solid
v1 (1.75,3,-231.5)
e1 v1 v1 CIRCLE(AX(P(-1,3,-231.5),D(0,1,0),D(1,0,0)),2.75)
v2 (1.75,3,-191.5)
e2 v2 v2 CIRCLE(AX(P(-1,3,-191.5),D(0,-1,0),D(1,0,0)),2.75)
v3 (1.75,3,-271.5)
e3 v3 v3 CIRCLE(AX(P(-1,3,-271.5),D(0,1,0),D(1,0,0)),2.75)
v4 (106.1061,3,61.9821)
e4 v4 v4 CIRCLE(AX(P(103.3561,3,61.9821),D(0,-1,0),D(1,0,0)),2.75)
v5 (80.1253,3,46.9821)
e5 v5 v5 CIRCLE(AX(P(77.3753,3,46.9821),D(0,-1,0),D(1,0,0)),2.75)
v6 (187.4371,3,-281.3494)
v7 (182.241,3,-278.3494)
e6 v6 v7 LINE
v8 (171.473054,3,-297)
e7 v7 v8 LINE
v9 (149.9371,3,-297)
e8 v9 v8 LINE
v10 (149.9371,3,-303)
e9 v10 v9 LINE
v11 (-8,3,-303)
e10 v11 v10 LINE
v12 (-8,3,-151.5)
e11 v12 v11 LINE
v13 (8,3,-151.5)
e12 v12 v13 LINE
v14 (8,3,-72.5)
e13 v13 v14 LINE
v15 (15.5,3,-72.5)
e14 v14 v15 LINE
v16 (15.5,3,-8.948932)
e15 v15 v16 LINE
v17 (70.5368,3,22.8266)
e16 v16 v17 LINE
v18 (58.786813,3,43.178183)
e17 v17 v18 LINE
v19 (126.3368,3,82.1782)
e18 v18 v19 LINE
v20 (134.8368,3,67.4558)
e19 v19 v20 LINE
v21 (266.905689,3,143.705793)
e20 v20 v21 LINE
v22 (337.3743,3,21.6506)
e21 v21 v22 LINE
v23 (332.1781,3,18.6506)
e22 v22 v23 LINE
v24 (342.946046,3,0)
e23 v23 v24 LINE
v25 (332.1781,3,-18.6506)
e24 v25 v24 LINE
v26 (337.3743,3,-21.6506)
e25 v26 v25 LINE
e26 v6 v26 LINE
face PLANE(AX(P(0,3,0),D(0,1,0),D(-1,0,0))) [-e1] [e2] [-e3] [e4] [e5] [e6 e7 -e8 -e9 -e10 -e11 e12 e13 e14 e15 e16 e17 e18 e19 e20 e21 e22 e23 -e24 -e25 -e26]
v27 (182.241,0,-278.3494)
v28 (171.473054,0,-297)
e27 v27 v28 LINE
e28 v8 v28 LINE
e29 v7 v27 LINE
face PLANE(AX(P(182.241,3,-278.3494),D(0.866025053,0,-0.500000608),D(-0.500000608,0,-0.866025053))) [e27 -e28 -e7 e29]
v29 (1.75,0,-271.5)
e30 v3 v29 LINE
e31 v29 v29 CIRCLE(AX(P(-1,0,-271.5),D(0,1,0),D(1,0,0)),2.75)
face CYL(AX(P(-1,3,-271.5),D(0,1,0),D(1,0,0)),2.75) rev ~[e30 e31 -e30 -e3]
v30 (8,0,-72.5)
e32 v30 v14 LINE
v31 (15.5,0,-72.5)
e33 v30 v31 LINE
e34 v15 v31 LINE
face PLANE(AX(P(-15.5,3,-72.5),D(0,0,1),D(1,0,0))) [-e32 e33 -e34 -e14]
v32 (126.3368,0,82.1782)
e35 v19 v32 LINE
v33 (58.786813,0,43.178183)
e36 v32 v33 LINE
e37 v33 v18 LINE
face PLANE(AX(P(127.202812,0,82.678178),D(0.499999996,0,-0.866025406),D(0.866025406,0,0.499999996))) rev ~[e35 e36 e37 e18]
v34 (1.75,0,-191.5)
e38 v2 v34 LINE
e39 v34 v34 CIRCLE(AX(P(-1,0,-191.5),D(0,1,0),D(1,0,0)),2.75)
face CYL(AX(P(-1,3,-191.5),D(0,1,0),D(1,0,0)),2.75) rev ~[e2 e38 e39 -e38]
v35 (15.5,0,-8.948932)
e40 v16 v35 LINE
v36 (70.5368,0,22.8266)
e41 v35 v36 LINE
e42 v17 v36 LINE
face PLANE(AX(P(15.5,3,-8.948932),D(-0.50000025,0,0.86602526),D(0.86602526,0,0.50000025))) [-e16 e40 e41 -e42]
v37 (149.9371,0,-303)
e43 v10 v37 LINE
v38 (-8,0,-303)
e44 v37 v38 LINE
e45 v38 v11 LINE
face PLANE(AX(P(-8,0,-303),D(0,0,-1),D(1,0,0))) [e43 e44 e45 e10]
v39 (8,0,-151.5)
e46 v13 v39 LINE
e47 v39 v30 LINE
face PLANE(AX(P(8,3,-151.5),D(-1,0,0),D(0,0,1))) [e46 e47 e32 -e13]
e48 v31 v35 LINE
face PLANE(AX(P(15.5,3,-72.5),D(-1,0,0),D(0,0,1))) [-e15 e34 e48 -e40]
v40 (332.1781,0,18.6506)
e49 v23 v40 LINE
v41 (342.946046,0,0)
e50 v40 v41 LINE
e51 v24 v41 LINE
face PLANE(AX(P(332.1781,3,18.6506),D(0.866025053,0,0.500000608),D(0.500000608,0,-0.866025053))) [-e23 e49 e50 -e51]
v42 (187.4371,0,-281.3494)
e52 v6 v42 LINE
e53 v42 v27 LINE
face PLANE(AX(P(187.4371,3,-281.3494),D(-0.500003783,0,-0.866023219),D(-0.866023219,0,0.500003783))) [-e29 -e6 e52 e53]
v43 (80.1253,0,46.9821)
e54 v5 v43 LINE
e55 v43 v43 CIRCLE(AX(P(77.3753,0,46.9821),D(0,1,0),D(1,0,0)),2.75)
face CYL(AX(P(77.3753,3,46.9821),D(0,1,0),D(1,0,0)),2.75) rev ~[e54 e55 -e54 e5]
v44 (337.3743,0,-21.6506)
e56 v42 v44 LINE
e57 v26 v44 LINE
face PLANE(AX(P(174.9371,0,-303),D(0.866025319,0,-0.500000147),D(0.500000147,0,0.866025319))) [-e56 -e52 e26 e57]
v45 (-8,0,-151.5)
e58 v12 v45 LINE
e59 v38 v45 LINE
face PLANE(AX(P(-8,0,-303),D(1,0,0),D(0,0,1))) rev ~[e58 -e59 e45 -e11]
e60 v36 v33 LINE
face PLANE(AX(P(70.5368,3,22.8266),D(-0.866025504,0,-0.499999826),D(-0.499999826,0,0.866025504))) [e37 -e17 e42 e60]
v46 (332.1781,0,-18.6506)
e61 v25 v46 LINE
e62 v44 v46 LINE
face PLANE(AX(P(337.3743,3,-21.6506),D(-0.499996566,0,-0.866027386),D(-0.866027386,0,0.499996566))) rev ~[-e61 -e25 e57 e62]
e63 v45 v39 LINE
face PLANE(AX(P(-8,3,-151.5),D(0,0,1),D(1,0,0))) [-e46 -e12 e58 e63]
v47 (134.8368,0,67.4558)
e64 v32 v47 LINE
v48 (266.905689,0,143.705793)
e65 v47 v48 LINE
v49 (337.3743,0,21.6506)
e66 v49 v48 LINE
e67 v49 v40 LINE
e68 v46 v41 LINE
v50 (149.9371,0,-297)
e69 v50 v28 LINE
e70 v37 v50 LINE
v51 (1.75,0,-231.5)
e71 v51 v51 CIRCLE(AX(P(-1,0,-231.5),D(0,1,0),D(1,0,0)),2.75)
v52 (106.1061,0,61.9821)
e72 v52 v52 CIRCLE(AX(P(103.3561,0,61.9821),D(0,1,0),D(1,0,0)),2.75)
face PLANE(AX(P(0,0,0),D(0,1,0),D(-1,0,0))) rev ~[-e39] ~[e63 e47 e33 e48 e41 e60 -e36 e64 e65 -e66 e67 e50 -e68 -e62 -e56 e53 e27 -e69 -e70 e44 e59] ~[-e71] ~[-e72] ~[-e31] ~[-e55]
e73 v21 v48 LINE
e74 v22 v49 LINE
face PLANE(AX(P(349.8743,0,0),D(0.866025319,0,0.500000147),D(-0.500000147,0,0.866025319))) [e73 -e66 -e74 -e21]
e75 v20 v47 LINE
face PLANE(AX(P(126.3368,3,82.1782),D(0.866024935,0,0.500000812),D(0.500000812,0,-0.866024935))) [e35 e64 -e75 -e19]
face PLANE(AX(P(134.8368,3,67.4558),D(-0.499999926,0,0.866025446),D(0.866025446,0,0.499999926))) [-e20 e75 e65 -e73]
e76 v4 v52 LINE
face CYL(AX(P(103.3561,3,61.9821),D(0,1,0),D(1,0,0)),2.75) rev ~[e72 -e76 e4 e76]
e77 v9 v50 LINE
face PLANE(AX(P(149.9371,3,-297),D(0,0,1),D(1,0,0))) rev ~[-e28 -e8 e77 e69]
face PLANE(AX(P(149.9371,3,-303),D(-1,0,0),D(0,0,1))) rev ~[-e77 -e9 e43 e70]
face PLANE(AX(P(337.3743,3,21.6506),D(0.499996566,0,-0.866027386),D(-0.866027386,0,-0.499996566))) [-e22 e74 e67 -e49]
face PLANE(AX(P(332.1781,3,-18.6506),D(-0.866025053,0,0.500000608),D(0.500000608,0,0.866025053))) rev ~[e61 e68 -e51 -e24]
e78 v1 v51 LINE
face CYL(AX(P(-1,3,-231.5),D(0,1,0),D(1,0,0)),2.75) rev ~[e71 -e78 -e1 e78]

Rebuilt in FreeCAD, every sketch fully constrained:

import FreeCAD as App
import Part
import Sketcher

V = App.Vector
Q = App.Units.Quantity


def add_polygon(sketch, points):
    """Adds a closed chain of lines whose ends are joined by coincident constraints."""
    first, n = sketch.GeometryCount, len(points)
    for a, b in zip(points, points[1:] + points[:1]):
        sketch.addGeometry(Part.LineSegment(App.Vector(*a, 0), App.Vector(*b, 0)), False)
    for i in range(n):
        sketch.addConstraint(Sketcher.Constraint("Coincident", first + i, 2, first + (i + 1) % n, 1))

doc = App.newDocument("Part")
body = doc.addObject("PartDesign::Body", "Body")

# Sketch on XZ plane
sketch1 = doc.addObject("Sketcher::SketchObject", "Sketch")
body.addObject(sketch1)
sketch1.AttachmentSupport = (doc.XZ_Plane, [""])
sketch1.MapMode = "FlatFace"
add_polygon(sketch1, [(-8, -303), (-8, 0), (-3.2, 5.54256), (-4, 6.9282), (258.4057, 158.4282), (349.8743, 0), (174.9371, -303)])  # lines 0-6
sketch1.addConstraint([
    Sketcher.Constraint("Vertical", 0),
    Sketcher.Constraint("Horizontal", 6),
    Sketcher.Constraint("PointOnObject", 0, 2, -1),
    Sketcher.Constraint("PointOnObject", 4, 2, -1),
    Sketcher.Constraint("Perpendicular", 2, 3),
    Sketcher.Constraint("Perpendicular", 3, 4),
    Sketcher.Constraint("DistanceY", 0, 1, 0, 2, Q("303 mm")),
    Sketcher.Constraint("Distance", 3, Q("303 mm")),
    Sketcher.Constraint("DistanceX", 0, 2, -1, 1, Q("8 mm")),
    Sketcher.Constraint("Angle", 2, Q("120 deg")),
    Sketcher.Constraint("Angle", 5, Q("-120 deg")),
    Sketcher.Constraint("DistanceX", 2, 2, -1, 1, Q("4 mm")),
    Sketcher.Constraint("Distance", 2, Q("1.6 mm")),
    Sketcher.Constraint("DistanceX", 6, 2, 6, 1, Q("182.937 mm")),
])
pad1 = doc.addObject("PartDesign::Pad", "Pad")
body.addObject(pad1)
pad1.Profile = sketch1
pad1.Length = 3
pad1.Reversed = True

# Sketch on XZ plane
sketch2 = doc.addObject("Sketcher::SketchObject", "Sketch001")
body.addObject(sketch2)
sketch2.AttachmentSupport = (doc.XZ_Plane, [""])
sketch2.MapMode = "FlatFace"
sketch2.AttachmentOffset = App.Placement(V(0, 0, -3), App.Rotation())
add_polygon(sketch2, [(8, -151.5), (-8, -151.5), (-8, 0), (8, 0)])  # lines 0-3
add_polygon(sketch2, [(134.8368, 67.4558), (126.336806, 82.178189), (258.4057, 158.4282), (266.9057, 143.7058)])  # lines 4-7
sketch2.addConstraint([
    Sketcher.Constraint("Horizontal", 0),
    Sketcher.Constraint("Vertical", 1),
    Sketcher.Constraint("Horizontal", 2),
    Sketcher.Constraint("Vertical", 3),
    Sketcher.Constraint("Symmetric", 1, 2, 2, 2, -1, 1),
    Sketcher.Constraint("Perpendicular", 4, 5),
    Sketcher.Constraint("Perpendicular", 5, 6),
    Sketcher.Constraint("Perpendicular", 6, 7),
    Sketcher.Constraint("DistanceX", 0, 2, 0, 1, Q("16 mm")),
    Sketcher.Constraint("Distance", 4, Q("17 mm")),
    Sketcher.Constraint("DistanceY", 1, 1, 1, 2, Q("151.5 mm")),
    Sketcher.Constraint("Distance", 5, Q("152.5 mm")),
    Sketcher.Constraint("Angle", 4, Q("120 deg")),
    Sketcher.Constraint("DistanceX", -1, 1, 4, 2, Q("126.3368 mm")),
    Sketcher.Constraint("DistanceY", -1, 1, 4, 2, Q("82.1782 mm")),
])
pocket1 = doc.addObject("PartDesign::Pocket", "Pocket")
body.addObject(pocket1)
pocket1.Profile = sketch2
pocket1.Length = 3
pocket1.Reversed = True

# Sketch on XZ plane
sketch3 = doc.addObject("Sketcher::SketchObject", "Sketch002")
body.addObject(sketch3)
sketch3.AttachmentSupport = (doc.XZ_Plane, [""])
sketch3.MapMode = "FlatFace"
sketch3.AttachmentOffset = App.Placement(V(0, 0, -3), App.Rotation())
add_polygon(sketch3, [(149.9371, -297), (171.473054, -297), (182.241, -278.3494), (187.437088, -281.349393), (174.9371, -303), (149.9371, -303)])  # lines 0-5
add_polygon(sketch3, [(349.8743, 0), (337.3743, -21.6506), (332.1781, -18.6506), (342.946046, 0), (332.1781, 18.6506), (337.3743, 21.6506)])  # lines 6-11
sketch3.addConstraint([
    Sketcher.Constraint("Horizontal", 0),
    Sketcher.Constraint("Horizontal", 4),
    Sketcher.Constraint("Vertical", 5),
    Sketcher.Constraint("Symmetric", 7, 2, 9, 2, -1),
    Sketcher.Constraint("Symmetric", 6, 2, 10, 2, -1),
    Sketcher.Constraint("PointOnObject", 8, 2, -1),
    Sketcher.Constraint("PointOnObject", 11, 2, -1),
    Sketcher.Constraint("Perpendicular", 1, 2),
    Sketcher.Constraint("Perpendicular", 2, 3),
    Sketcher.Constraint("Parallel", 3, 6),
    Sketcher.Constraint("Perpendicular", 6, 7),
    Sketcher.Constraint("Perpendicular", 7, 8),
    Sketcher.Constraint("Equal", 3, 6),
    Sketcher.Constraint("Equal", 2, 7),
    Sketcher.Constraint("Equal", 1, 8),
    Sketcher.Constraint("DistanceX", 4, 2, 4, 1, Q("25 mm")),
    Sketcher.Constraint("DistanceY", 5, 1, 5, 2, Q("6 mm")),
    Sketcher.Constraint("Angle", 3, Q("-120 deg")),
    Sketcher.Constraint("Distance", 3, Q("25 mm")),
    Sketcher.Constraint("DistanceY", 0, 2, -1, 1, Q("297 mm")),
    Sketcher.Constraint("DistanceX", -1, 1, 0, 2, Q("171.473 mm")),
    Sketcher.Constraint("DistanceX", -1, 1, 7, 2, Q("332.178 mm")),
])
pocket2 = doc.addObject("PartDesign::Pocket", "Pocket001")
body.addObject(pocket2)
pocket2.Profile = sketch3
pocket2.Length = 3
pocket2.Reversed = True

# Sketch on XZ plane
sketch4 = doc.addObject("Sketcher::SketchObject", "Sketch003")
body.addObject(sketch4)
sketch4.AttachmentSupport = (doc.XZ_Plane, [""])
sketch4.MapMode = "FlatFace"
sketch4.AttachmentOffset = App.Placement(V(0, 0, -3), App.Rotation())
add_polygon(sketch4, [(-15.5, -26.846803), (-55.0368, -49.6734), (-70.5368, -22.8266), (-15.5, 8.948932), (-15.5, 72.5), (15.5, 72.5), (15.5, 26.846803), (55.0368, 49.6734), (70.5368, 22.8266), (15.5, -8.948932), (15.5, -72.5), (-15.5, -72.5)])  # lines 0-11
sketch4.addConstraint([
    Sketcher.Constraint("Vertical", 3),
    Sketcher.Constraint("Horizontal", 4),
    Sketcher.Constraint("Vertical", 5),
    Sketcher.Constraint("Vertical", 9),
    Sketcher.Constraint("Horizontal", 10),
    Sketcher.Constraint("Vertical", 11),
    Sketcher.Constraint("Symmetric", 0, 2, 6, 2, -1, 1),
    Sketcher.Constraint("Symmetric", 1, 2, 7, 2, -1, 1),
    Sketcher.Constraint("Symmetric", 2, 2, 8, 2, -1, 1),
    Sketcher.Constraint("Symmetric", 4, 2, 10, 2, -1, 1),
    Sketcher.Constraint("Perpendicular", 0, 1),
    Sketcher.Constraint("Perpendicular", 1, 2),
    Sketcher.Constraint("Parallel", 2, 6),
    Sketcher.Constraint("Vertical", 5, 2, 8, 2),
    Sketcher.Constraint("DistanceX", 4, 1, 4, 2, Q("31 mm")),
    Sketcher.Constraint("Angle", 2, Q("30 deg")),
    Sketcher.Constraint("Distance", 1, Q("31 mm")),
    Sketcher.Constraint("DistanceY", -1, 1, 3, 2, Q("72.5 mm")),
    Sketcher.Constraint("DistanceY", 1, 2, 6, 2, Q("72.5 mm")),
    Sketcher.Constraint("DistanceY", 3, 1, 3, 2, Q("63.551 mm")),
])
pocket3 = doc.addObject("PartDesign::Pocket", "Pocket002")
body.addObject(pocket3)
pocket3.Profile = sketch4
pocket3.Length = 3
pocket3.Reversed = True

# Sketch on XZ plane
sketch5 = doc.addObject("Sketcher::SketchObject", "Sketch004")
body.addObject(sketch5)
sketch5.AttachmentSupport = (doc.XZ_Plane, [""])
sketch5.MapMode = "FlatFace"
sketch5.AttachmentOffset = App.Placement(V(0, 0, -3), App.Rotation())
sketch5.addGeometry([
    Part.Circle(V(-1, -191.5, 0), V(0, 0, 1), 2.75),  # 0
    Part.Circle(V(-1, -231.5, 0), V(0, 0, 1), 2.75),  # 1
    Part.Circle(V(-1, -271.5, 0), V(0, 0, 1), 2.75),  # 2
    Part.Circle(V(103.3561, 61.9821, 0), V(0, 0, 1), 2.75),  # 3
    Part.Circle(V(77.3753, 46.9821, 0), V(0, 0, 1), 2.75),  # 4
], False)
sketch5.addConstraint([
    Sketcher.Constraint("Equal", 0, 1),
    Sketcher.Constraint("Equal", 1, 2),
    Sketcher.Constraint("Equal", 2, 3),
    Sketcher.Constraint("Equal", 3, 4),
    Sketcher.Constraint("Vertical", 0, 3, 1, 3),
    Sketcher.Constraint("Vertical", 1, 3, 2, 3),
    Sketcher.Constraint("Diameter", 0, Q("5.5 mm")),
    Sketcher.Constraint("DistanceX", 0, 3, -1, 1, Q("1 mm")),
    Sketcher.Constraint("DistanceY", 1, 3, 0, 3, Q("40 mm")),
    Sketcher.Constraint("DistanceY", 2, 3, 1, 3, Q("40 mm")),
    Sketcher.Constraint("DistanceY", 4, 3, 3, 3, Q("15 mm")),
    Sketcher.Constraint("DistanceY", 0, 3, -1, 1, Q("191.5 mm")),
    Sketcher.Constraint("DistanceX", -1, 1, 3, 3, Q("103.356 mm")),
    Sketcher.Constraint("DistanceY", -1, 1, 3, 3, Q("61.982 mm")),
    Sketcher.Constraint("DistanceX", -1, 1, 4, 3, Q("77.3753 mm")),
])
pocket4 = doc.addObject("PartDesign::Pocket", "Pocket003")
body.addObject(pocket4)
pocket4.Profile = sketch5
pocket4.Length = 3
pocket4.Reversed = True

doc.recompute()
